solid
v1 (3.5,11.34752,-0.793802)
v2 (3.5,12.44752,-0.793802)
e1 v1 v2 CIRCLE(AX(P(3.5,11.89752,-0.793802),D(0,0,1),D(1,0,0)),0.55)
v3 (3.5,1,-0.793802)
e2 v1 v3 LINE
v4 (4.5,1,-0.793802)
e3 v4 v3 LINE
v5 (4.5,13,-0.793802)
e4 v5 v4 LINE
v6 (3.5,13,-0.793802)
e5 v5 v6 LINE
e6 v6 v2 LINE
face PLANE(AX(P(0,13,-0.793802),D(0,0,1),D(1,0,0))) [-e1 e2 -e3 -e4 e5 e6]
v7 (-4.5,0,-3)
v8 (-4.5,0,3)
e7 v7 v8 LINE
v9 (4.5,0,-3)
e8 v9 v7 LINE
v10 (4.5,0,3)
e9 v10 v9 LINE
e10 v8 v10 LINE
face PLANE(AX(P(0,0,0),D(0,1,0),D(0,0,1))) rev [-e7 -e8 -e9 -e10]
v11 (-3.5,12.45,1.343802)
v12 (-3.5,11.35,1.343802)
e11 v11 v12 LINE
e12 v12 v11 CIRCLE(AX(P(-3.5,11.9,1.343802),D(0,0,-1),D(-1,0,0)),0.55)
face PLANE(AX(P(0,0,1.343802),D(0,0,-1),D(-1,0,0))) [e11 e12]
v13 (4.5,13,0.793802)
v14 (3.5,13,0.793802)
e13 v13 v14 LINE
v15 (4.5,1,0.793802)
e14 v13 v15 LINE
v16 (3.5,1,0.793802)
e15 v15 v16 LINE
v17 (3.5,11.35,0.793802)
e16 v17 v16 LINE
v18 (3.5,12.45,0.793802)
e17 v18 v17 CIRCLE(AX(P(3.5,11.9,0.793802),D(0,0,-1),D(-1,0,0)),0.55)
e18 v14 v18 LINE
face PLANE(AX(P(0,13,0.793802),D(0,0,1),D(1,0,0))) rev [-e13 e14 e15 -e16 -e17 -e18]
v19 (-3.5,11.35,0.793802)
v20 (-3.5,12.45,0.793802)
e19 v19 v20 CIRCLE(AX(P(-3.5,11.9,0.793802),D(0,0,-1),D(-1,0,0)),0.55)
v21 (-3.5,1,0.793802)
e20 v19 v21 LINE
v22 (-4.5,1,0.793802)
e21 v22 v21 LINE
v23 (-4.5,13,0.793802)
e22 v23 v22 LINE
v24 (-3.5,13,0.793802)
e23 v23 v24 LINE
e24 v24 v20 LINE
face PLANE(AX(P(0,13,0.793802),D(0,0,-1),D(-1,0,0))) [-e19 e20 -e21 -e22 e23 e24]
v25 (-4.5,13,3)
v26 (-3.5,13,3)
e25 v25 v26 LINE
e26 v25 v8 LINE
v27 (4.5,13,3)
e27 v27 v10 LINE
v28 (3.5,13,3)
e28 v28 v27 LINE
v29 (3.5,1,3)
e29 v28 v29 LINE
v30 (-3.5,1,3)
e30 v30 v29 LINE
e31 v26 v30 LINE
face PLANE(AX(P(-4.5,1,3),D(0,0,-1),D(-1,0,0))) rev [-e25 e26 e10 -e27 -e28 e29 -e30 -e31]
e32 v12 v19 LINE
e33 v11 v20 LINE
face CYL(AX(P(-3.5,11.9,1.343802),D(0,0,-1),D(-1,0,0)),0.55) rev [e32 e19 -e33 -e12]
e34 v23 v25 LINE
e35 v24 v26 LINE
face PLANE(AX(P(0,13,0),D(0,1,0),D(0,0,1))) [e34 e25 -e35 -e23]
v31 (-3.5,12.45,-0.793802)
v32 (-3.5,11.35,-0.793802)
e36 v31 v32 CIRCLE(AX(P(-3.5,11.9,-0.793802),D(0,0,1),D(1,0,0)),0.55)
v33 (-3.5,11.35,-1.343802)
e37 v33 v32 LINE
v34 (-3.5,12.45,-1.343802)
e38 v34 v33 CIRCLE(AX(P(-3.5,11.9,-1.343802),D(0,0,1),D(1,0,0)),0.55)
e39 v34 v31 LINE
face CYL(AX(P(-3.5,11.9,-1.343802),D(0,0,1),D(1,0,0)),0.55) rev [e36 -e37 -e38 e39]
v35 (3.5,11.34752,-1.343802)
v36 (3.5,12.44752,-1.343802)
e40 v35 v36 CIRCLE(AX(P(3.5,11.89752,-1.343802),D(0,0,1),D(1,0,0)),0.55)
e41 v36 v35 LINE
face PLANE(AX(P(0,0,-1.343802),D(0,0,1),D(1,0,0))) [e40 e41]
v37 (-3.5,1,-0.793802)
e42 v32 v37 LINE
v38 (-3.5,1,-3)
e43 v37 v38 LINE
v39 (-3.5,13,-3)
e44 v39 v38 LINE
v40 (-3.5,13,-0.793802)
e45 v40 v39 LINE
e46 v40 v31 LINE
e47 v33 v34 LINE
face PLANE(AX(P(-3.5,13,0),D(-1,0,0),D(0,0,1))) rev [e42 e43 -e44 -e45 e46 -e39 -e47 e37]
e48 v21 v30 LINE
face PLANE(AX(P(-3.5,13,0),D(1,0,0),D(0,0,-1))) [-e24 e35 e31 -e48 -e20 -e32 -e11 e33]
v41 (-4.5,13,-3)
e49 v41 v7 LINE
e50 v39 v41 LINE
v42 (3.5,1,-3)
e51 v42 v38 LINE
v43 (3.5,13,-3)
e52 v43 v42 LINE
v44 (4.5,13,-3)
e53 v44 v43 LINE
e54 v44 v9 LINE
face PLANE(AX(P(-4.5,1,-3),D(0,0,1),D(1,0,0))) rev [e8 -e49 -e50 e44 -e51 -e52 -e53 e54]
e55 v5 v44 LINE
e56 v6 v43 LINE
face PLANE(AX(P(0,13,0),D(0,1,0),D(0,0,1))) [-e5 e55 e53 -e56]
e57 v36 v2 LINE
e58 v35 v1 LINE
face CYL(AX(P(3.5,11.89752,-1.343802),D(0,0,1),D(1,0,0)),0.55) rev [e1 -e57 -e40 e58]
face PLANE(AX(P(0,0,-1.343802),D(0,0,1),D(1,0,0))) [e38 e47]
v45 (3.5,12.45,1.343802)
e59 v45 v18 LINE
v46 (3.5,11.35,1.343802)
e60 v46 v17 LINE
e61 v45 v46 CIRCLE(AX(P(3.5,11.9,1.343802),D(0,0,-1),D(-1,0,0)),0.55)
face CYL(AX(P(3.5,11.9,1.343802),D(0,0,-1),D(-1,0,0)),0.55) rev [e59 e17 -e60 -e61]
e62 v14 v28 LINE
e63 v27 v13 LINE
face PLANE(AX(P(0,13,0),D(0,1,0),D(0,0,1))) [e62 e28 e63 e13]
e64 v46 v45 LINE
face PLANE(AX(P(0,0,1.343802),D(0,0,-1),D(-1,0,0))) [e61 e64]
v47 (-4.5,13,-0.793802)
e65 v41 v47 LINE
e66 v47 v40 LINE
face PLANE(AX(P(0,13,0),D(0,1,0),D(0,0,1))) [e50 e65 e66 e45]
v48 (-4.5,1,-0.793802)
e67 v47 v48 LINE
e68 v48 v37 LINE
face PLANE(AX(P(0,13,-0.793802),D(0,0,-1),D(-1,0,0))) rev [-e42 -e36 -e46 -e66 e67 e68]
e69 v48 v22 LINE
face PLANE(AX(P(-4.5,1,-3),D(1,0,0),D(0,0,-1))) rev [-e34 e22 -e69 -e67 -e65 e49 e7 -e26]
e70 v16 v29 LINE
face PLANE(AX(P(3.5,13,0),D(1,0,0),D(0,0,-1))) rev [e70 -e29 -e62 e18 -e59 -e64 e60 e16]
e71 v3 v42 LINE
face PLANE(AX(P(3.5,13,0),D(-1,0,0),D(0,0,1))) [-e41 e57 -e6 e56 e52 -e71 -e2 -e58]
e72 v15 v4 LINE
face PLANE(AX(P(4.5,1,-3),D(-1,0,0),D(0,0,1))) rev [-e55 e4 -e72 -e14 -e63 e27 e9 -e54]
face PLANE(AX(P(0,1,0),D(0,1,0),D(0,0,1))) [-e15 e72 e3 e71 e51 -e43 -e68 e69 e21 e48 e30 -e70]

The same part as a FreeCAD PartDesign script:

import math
import FreeCAD as App
import Part
import Sketcher

V = App.Vector

doc = App.newDocument("Part")
params = doc.addObject("Spreadsheet::Sheet", "Params")
for row, (alias, value) in enumerate([
    ("sketch1_width", "9 mm"),
    ("sketch1_height", "6 mm"),
    ("pad1_length", "1 mm"),
    ("sketch2_width", "1 mm"),
    ("pad2_length", "12 mm"),
    ("sketch3_radius", "0.55 mm"),
    ("pocket1_length", "0.55 mm"),
    ("sketch4_radius", "0.55 mm"),
    ("pocket2_length", "0.55 mm"),
    ("sketch5_radius", "0.55 mm"),
    ("pocket3_length", "0.55 mm"),
    ("sketch6_radius", "0.55 mm"),
    ("pocket4_length", "0.55 mm"),
], start=1):
    params.set(f"A{row}", alias)
    params.set(f"B{row}", "=" + value)
    params.setAlias(f"B{row}", alias)

body = doc.addObject("PartDesign::Body", "Body")

# Sketch on XZ plane
sketch1 = body.newObject("Sketcher::SketchObject", "Sketch")
sketch1.AttachmentSupport = (doc.getObject("XZ_Plane"), [""])
sketch1.MapMode = "FlatFace"
sketch1.addGeometry([
    Part.LineSegment(V(-4.5, -3, 0), V(-4.5, 3, 0)),
    Part.LineSegment(V(-4.5, 3, 0), V(4.5, 3, 0)),
    Part.LineSegment(V(4.5, 3, 0), V(4.5, -3, 0)),
    Part.LineSegment(V(4.5, -3, 0), V(-4.5, -3, 0)),
], False)
sketch1.addConstraint([
    Sketcher.Constraint("Coincident", 0, 2, 1, 1),
    Sketcher.Constraint("Coincident", 1, 2, 2, 1),
    Sketcher.Constraint("Coincident", 2, 2, 3, 1),
    Sketcher.Constraint("Coincident", 3, 2, 0, 1),
    Sketcher.Constraint("Vertical", 0),
    Sketcher.Constraint("Horizontal", 1),
    Sketcher.Constraint("Vertical", 2),
    Sketcher.Constraint("Horizontal", 3),
    Sketcher.Constraint("Symmetric", 0, 2, 2, 2, -1, 1),
    Sketcher.Constraint("DistanceX", 1, 1, 1, 2, 9.0),
    Sketcher.Constraint("DistanceY", 0, 1, 0, 2, 6.0),
])
sketch1.setExpression("Constraints[9]", "Params.sketch1_width")
sketch1.setExpression("Constraints[10]", "Params.sketch1_height")
pad1 = body.newObject("PartDesign::Pad", "Pad")
pad1.Profile = sketch1
pad1.setExpression("Length", "Params.pad1_length")
pad1.Reversed = True

# Sketch on XZ plane
sketch2 = body.newObject("Sketcher::SketchObject", "Sketch001")
sketch2.AttachmentSupport = (doc.getObject("XZ_Plane"), [""])
sketch2.MapMode = "FlatFace"
sketch2.AttachmentOffset = App.Placement(V(0, 0, -1), App.Rotation())
sketch2.addGeometry([
    Part.LineSegment(V(-4.5, -3, 0), V(-4.5, -0.793802, 0)),  # 0
    Part.LineSegment(V(-4.5, -0.793802, 0), V(-3.5, -0.793802, 0)),  # 1
    Part.LineSegment(V(-3.5, -0.793802, 0), V(-3.5, -3, 0)),  # 2
    Part.LineSegment(V(-3.5, -3, 0), V(-4.5, -3, 0)),  # 3
    Part.LineSegment(V(-4.5, 0.793802, 0), V(-4.5, 3, 0)),  # 4
    Part.LineSegment(V(-4.5, 3, 0), V(-3.5, 3, 0)),  # 5
    Part.LineSegment(V(-3.5, 3, 0), V(-3.5, 0.793802, 0)),  # 6
    Part.LineSegment(V(-3.5, 0.793802, 0), V(-4.5, 0.793802, 0)),  # 7
    Part.LineSegment(V(3.5, 0.793802, 0), V(3.5, 3, 0)),  # 8
    Part.LineSegment(V(3.5, 3, 0), V(4.5, 3, 0)),  # 9
    Part.LineSegment(V(4.5, 3, 0), V(4.5, 0.793802, 0)),  # 10
    Part.LineSegment(V(4.5, 0.793802, 0), V(3.5, 0.793802, 0)),  # 11
    Part.LineSegment(V(3.5, -3, 0), V(3.5, -0.793802, 0)),  # 12
    Part.LineSegment(V(3.5, -0.793802, 0), V(4.5, -0.793802, 0)),  # 13
    Part.LineSegment(V(4.5, -0.793802, 0), V(4.5, -3, 0)),  # 14
    Part.LineSegment(V(4.5, -3, 0), V(3.5, -3, 0)),  # 15
], False)
sketch2.addConstraint([
    Sketcher.Constraint("Coincident", 0, 2, 1, 1),
    Sketcher.Constraint("Coincident", 1, 2, 2, 1),
    Sketcher.Constraint("Coincident", 2, 2, 3, 1),
    Sketcher.Constraint("Coincident", 3, 2, 0, 1),
    Sketcher.Constraint("Coincident", 4, 2, 5, 1),
    Sketcher.Constraint("Coincident", 5, 2, 6, 1),
    Sketcher.Constraint("Coincident", 6, 2, 7, 1),
    Sketcher.Constraint("Coincident", 7, 2, 4, 1),
    Sketcher.Constraint("Coincident", 8, 2, 9, 1),
    Sketcher.Constraint("Coincident", 9, 2, 10, 1),
    Sketcher.Constraint("Coincident", 10, 2, 11, 1),
    Sketcher.Constraint("Coincident", 11, 2, 8, 1),
    Sketcher.Constraint("Coincident", 12, 2, 13, 1),
    Sketcher.Constraint("Coincident", 13, 2, 14, 1),
    Sketcher.Constraint("Coincident", 14, 2, 15, 1),
    Sketcher.Constraint("Coincident", 15, 2, 12, 1),
    Sketcher.Constraint("Vertical", 0),
    Sketcher.Constraint("Horizontal", 1),
    Sketcher.Constraint("Vertical", 2),
    Sketcher.Constraint("Horizontal", 3),
    Sketcher.Constraint("Vertical", 4),
    Sketcher.Constraint("Horizontal", 5),
    Sketcher.Constraint("Vertical", 6),
    Sketcher.Constraint("Horizontal", 7),
    Sketcher.Constraint("Vertical", 8),
    Sketcher.Constraint("Horizontal", 9),
    Sketcher.Constraint("Vertical", 10),
    Sketcher.Constraint("Horizontal", 11),
    Sketcher.Constraint("Vertical", 12),
    Sketcher.Constraint("Horizontal", 13),
    Sketcher.Constraint("Vertical", 14),
    Sketcher.Constraint("Horizontal", 15),
    Sketcher.Constraint("Symmetric", 2, 2, 8, 2, -1, 1),
    Sketcher.Constraint("Symmetric", 0, 2, 10, 2, -1, 1),
    Sketcher.Constraint("Symmetric", 6, 2, 12, 2, -1, 1),
    Sketcher.Constraint("Symmetric", 4, 2, 14, 2, -1, 1),
    Sketcher.Constraint("Symmetric", 5, 2, 8, 2, -2),
    Sketcher.Constraint("Symmetric", 7, 2, 10, 2, -2),
    Sketcher.Constraint("DistanceX", 1, 1, 1, 2, 1.0),
    Sketcher.Constraint("DistanceY", 2, 2, -1, 1, 3.0),
    Sketcher.Constraint("DistanceX", 5, 2, 8, 2, 7.0),
    Sketcher.Constraint("DistanceY", 0, 1, 0, 2, 2.206198),
])
sketch2.setExpression("Constraints[38]", "Params.sketch2_width")
pad2 = body.newObject("PartDesign::Pad", "Pad001")
pad2.Profile = sketch2
pad2.setExpression("Length", "Params.pad2_length")
pad2.Reversed = True

# Sketch on XY plane
sketch3 = body.newObject("Sketcher::SketchObject", "Sketch002")
sketch3.AttachmentSupport = (doc.getObject("XY_Plane"), [""])
sketch3.MapMode = "FlatFace"
sketch3.AttachmentOffset = App.Placement(V(0, 0, -0.793802), App.Rotation())
sketch3.addGeometry([
    Part.ArcOfCircle(Part.Circle(V(3.5, 11.89752, 0), V(0, 0, 1), 0.55), math.radians(0), math.radians(90)),
    Part.ArcOfCircle(Part.Circle(V(3.5, 11.89752, 0), V(0, 0, 1), 0.55), math.radians(90), math.radians(270)),
    Part.ArcOfCircle(Part.Circle(V(3.5, 11.89752, 0), V(0, 0, 1), 0.55), math.radians(-90), math.radians(0)),
], False)
sketch3.addConstraint([
    Sketcher.Constraint("Tangent", 0, 2, 1, 1),
    Sketcher.Constraint("Tangent", 1, 2, 2, 1),
    Sketcher.Constraint("Tangent", 2, 2, 0, 1),
    Sketcher.Constraint("Horizontal", 1, 3, 2, 2),
    Sketcher.Constraint("Vertical", 2, 3, 0, 2),
    Sketcher.Constraint("Vertical", 0, 2, 1, 2),
    Sketcher.Constraint("Radius", 0, 0.55),
    Sketcher.Constraint("DistanceX", -1, 1, 0, 3, 3.5),
    Sketcher.Constraint("DistanceY", -1, 1, 0, 3, 11.89752),
])
sketch3.setExpression("Constraints[6]", "Params.sketch3_radius")
pocket1 = body.newObject("PartDesign::Pocket", "Pocket")
pocket1.Profile = sketch3
pocket1.setExpression("Length", "Params.pocket1_length")

# Sketch on XY plane
sketch4 = body.newObject("Sketcher::SketchObject", "Sketch003")
sketch4.AttachmentSupport = (doc.getObject("XY_Plane"), [""])
sketch4.MapMode = "FlatFace"
sketch4.AttachmentOffset = App.Placement(V(0, 0, 0.793802), App.Rotation())
sketch4.addGeometry([
    Part.ArcOfCircle(Part.Circle(V(3.5, 11.9, 0), V(0, 0, 1), 0.55), math.radians(90), math.radians(180)),
    Part.ArcOfCircle(Part.Circle(V(3.5, 11.9, 0), V(0, 0, 1), 0.55), math.radians(-90), math.radians(90)),
    Part.ArcOfCircle(Part.Circle(V(3.5, 11.9, 0), V(0, 0, 1), 0.55), math.radians(180), math.radians(270)),
], False)
sketch4.addConstraint([
    Sketcher.Constraint("Tangent", 0, 1, 1, 2),
    Sketcher.Constraint("Tangent", 1, 1, 2, 2),
    Sketcher.Constraint("Tangent", 2, 1, 0, 2),
    Sketcher.Constraint("Horizontal", 1, 3, 2, 1),
    Sketcher.Constraint("Vertical", 2, 3, 0, 1),
    Sketcher.Constraint("Vertical", 0, 1, 1, 1),
    Sketcher.Constraint("Radius", 0, 0.55),
    Sketcher.Constraint("DistanceX", -1, 1, 0, 3, 3.5),
    Sketcher.Constraint("DistanceY", -1, 1, 0, 3, 11.9),
])
sketch4.setExpression("Constraints[6]", "Params.sketch4_radius")
pocket2 = body.newObject("PartDesign::Pocket", "Pocket001")
pocket2.Profile = sketch4
pocket2.setExpression("Length", "Params.pocket2_length")
pocket2.Reversed = True

# Sketch on XY plane
sketch5 = body.newObject("Sketcher::SketchObject", "Sketch004")
sketch5.AttachmentSupport = (doc.getObject("XY_Plane"), [""])
sketch5.MapMode = "FlatFace"
sketch5.AttachmentOffset = App.Placement(V(0, 0, 0.793802), App.Rotation())
sketch5.addGeometry([
    Part.ArcOfCircle(Part.Circle(V(-3.5, 11.9, 0), V(0, 0, 1), 0.55), math.radians(90), math.radians(180)),
    Part.ArcOfCircle(Part.Circle(V(-3.5, 11.9, 0), V(0, 0, 1), 0.55), math.radians(-90), math.radians(90)),
    Part.ArcOfCircle(Part.Circle(V(-3.5, 11.9, 0), V(0, 0, 1), 0.55), math.radians(180), math.radians(270)),
], False)
sketch5.addConstraint([
    Sketcher.Constraint("Tangent", 0, 1, 1, 2),
    Sketcher.Constraint("Tangent", 1, 1, 2, 2),
    Sketcher.Constraint("Tangent", 2, 1, 0, 2),
    Sketcher.Constraint("Horizontal", 1, 3, 2, 1),
    Sketcher.Constraint("Vertical", 2, 3, 0, 1),
    Sketcher.Constraint("Vertical", 0, 1, 1, 1),
    Sketcher.Constraint("Radius", 0, 0.55),
    Sketcher.Constraint("DistanceX", 0, 3, -1, 1, 3.5),
    Sketcher.Constraint("DistanceY", -1, 1, 0, 3, 11.9),
])
sketch5.setExpression("Constraints[6]", "Params.sketch5_radius")
pocket3 = body.newObject("PartDesign::Pocket", "Pocket002")
pocket3.Profile = sketch5
pocket3.setExpression("Length", "Params.pocket3_length")
pocket3.Reversed = True

# Sketch on XY plane
sketch6 = body.newObject("Sketcher::SketchObject", "Sketch005")
sketch6.AttachmentSupport = (doc.getObject("XY_Plane"), [""])
sketch6.MapMode = "FlatFace"
sketch6.AttachmentOffset = App.Placement(V(0, 0, -1.343802), App.Rotation())
sketch6.addGeometry([
    Part.ArcOfCircle(Part.Circle(V(-3.5, 11.9, 0), V(0, 0, 1), 0.55), math.radians(0), math.radians(90)),
    Part.ArcOfCircle(Part.Circle(V(-3.5, 11.9, 0), V(0, 0, 1), 0.55), math.radians(90), math.radians(270)),
    Part.ArcOfCircle(Part.Circle(V(-3.5, 11.9, 0), V(0, 0, 1), 0.55), math.radians(-90), math.radians(0)),
], False)
sketch6.addConstraint([
    Sketcher.Constraint("Tangent", 0, 2, 1, 1),
    Sketcher.Constraint("Tangent", 1, 2, 2, 1),
    Sketcher.Constraint("Tangent", 2, 2, 0, 1),
    Sketcher.Constraint("Horizontal", 1, 3, 2, 2),
    Sketcher.Constraint("Vertical", 2, 3, 0, 2),
    Sketcher.Constraint("Vertical", 0, 2, 1, 2),
    Sketcher.Constraint("Radius", 0, 0.55),
    Sketcher.Constraint("DistanceX", 0, 3, -1, 1, 3.5),
    Sketcher.Constraint("DistanceY", -1, 1, 0, 3, 11.9),
])
sketch6.setExpression("Constraints[6]", "Params.sketch6_radius")
pocket4 = body.newObject("PartDesign::Pocket", "Pocket003")
pocket4.Profile = sketch6
pocket4.setExpression("Length", "Params.pocket4_length")
pocket4.Reversed = True

doc.recompute()
